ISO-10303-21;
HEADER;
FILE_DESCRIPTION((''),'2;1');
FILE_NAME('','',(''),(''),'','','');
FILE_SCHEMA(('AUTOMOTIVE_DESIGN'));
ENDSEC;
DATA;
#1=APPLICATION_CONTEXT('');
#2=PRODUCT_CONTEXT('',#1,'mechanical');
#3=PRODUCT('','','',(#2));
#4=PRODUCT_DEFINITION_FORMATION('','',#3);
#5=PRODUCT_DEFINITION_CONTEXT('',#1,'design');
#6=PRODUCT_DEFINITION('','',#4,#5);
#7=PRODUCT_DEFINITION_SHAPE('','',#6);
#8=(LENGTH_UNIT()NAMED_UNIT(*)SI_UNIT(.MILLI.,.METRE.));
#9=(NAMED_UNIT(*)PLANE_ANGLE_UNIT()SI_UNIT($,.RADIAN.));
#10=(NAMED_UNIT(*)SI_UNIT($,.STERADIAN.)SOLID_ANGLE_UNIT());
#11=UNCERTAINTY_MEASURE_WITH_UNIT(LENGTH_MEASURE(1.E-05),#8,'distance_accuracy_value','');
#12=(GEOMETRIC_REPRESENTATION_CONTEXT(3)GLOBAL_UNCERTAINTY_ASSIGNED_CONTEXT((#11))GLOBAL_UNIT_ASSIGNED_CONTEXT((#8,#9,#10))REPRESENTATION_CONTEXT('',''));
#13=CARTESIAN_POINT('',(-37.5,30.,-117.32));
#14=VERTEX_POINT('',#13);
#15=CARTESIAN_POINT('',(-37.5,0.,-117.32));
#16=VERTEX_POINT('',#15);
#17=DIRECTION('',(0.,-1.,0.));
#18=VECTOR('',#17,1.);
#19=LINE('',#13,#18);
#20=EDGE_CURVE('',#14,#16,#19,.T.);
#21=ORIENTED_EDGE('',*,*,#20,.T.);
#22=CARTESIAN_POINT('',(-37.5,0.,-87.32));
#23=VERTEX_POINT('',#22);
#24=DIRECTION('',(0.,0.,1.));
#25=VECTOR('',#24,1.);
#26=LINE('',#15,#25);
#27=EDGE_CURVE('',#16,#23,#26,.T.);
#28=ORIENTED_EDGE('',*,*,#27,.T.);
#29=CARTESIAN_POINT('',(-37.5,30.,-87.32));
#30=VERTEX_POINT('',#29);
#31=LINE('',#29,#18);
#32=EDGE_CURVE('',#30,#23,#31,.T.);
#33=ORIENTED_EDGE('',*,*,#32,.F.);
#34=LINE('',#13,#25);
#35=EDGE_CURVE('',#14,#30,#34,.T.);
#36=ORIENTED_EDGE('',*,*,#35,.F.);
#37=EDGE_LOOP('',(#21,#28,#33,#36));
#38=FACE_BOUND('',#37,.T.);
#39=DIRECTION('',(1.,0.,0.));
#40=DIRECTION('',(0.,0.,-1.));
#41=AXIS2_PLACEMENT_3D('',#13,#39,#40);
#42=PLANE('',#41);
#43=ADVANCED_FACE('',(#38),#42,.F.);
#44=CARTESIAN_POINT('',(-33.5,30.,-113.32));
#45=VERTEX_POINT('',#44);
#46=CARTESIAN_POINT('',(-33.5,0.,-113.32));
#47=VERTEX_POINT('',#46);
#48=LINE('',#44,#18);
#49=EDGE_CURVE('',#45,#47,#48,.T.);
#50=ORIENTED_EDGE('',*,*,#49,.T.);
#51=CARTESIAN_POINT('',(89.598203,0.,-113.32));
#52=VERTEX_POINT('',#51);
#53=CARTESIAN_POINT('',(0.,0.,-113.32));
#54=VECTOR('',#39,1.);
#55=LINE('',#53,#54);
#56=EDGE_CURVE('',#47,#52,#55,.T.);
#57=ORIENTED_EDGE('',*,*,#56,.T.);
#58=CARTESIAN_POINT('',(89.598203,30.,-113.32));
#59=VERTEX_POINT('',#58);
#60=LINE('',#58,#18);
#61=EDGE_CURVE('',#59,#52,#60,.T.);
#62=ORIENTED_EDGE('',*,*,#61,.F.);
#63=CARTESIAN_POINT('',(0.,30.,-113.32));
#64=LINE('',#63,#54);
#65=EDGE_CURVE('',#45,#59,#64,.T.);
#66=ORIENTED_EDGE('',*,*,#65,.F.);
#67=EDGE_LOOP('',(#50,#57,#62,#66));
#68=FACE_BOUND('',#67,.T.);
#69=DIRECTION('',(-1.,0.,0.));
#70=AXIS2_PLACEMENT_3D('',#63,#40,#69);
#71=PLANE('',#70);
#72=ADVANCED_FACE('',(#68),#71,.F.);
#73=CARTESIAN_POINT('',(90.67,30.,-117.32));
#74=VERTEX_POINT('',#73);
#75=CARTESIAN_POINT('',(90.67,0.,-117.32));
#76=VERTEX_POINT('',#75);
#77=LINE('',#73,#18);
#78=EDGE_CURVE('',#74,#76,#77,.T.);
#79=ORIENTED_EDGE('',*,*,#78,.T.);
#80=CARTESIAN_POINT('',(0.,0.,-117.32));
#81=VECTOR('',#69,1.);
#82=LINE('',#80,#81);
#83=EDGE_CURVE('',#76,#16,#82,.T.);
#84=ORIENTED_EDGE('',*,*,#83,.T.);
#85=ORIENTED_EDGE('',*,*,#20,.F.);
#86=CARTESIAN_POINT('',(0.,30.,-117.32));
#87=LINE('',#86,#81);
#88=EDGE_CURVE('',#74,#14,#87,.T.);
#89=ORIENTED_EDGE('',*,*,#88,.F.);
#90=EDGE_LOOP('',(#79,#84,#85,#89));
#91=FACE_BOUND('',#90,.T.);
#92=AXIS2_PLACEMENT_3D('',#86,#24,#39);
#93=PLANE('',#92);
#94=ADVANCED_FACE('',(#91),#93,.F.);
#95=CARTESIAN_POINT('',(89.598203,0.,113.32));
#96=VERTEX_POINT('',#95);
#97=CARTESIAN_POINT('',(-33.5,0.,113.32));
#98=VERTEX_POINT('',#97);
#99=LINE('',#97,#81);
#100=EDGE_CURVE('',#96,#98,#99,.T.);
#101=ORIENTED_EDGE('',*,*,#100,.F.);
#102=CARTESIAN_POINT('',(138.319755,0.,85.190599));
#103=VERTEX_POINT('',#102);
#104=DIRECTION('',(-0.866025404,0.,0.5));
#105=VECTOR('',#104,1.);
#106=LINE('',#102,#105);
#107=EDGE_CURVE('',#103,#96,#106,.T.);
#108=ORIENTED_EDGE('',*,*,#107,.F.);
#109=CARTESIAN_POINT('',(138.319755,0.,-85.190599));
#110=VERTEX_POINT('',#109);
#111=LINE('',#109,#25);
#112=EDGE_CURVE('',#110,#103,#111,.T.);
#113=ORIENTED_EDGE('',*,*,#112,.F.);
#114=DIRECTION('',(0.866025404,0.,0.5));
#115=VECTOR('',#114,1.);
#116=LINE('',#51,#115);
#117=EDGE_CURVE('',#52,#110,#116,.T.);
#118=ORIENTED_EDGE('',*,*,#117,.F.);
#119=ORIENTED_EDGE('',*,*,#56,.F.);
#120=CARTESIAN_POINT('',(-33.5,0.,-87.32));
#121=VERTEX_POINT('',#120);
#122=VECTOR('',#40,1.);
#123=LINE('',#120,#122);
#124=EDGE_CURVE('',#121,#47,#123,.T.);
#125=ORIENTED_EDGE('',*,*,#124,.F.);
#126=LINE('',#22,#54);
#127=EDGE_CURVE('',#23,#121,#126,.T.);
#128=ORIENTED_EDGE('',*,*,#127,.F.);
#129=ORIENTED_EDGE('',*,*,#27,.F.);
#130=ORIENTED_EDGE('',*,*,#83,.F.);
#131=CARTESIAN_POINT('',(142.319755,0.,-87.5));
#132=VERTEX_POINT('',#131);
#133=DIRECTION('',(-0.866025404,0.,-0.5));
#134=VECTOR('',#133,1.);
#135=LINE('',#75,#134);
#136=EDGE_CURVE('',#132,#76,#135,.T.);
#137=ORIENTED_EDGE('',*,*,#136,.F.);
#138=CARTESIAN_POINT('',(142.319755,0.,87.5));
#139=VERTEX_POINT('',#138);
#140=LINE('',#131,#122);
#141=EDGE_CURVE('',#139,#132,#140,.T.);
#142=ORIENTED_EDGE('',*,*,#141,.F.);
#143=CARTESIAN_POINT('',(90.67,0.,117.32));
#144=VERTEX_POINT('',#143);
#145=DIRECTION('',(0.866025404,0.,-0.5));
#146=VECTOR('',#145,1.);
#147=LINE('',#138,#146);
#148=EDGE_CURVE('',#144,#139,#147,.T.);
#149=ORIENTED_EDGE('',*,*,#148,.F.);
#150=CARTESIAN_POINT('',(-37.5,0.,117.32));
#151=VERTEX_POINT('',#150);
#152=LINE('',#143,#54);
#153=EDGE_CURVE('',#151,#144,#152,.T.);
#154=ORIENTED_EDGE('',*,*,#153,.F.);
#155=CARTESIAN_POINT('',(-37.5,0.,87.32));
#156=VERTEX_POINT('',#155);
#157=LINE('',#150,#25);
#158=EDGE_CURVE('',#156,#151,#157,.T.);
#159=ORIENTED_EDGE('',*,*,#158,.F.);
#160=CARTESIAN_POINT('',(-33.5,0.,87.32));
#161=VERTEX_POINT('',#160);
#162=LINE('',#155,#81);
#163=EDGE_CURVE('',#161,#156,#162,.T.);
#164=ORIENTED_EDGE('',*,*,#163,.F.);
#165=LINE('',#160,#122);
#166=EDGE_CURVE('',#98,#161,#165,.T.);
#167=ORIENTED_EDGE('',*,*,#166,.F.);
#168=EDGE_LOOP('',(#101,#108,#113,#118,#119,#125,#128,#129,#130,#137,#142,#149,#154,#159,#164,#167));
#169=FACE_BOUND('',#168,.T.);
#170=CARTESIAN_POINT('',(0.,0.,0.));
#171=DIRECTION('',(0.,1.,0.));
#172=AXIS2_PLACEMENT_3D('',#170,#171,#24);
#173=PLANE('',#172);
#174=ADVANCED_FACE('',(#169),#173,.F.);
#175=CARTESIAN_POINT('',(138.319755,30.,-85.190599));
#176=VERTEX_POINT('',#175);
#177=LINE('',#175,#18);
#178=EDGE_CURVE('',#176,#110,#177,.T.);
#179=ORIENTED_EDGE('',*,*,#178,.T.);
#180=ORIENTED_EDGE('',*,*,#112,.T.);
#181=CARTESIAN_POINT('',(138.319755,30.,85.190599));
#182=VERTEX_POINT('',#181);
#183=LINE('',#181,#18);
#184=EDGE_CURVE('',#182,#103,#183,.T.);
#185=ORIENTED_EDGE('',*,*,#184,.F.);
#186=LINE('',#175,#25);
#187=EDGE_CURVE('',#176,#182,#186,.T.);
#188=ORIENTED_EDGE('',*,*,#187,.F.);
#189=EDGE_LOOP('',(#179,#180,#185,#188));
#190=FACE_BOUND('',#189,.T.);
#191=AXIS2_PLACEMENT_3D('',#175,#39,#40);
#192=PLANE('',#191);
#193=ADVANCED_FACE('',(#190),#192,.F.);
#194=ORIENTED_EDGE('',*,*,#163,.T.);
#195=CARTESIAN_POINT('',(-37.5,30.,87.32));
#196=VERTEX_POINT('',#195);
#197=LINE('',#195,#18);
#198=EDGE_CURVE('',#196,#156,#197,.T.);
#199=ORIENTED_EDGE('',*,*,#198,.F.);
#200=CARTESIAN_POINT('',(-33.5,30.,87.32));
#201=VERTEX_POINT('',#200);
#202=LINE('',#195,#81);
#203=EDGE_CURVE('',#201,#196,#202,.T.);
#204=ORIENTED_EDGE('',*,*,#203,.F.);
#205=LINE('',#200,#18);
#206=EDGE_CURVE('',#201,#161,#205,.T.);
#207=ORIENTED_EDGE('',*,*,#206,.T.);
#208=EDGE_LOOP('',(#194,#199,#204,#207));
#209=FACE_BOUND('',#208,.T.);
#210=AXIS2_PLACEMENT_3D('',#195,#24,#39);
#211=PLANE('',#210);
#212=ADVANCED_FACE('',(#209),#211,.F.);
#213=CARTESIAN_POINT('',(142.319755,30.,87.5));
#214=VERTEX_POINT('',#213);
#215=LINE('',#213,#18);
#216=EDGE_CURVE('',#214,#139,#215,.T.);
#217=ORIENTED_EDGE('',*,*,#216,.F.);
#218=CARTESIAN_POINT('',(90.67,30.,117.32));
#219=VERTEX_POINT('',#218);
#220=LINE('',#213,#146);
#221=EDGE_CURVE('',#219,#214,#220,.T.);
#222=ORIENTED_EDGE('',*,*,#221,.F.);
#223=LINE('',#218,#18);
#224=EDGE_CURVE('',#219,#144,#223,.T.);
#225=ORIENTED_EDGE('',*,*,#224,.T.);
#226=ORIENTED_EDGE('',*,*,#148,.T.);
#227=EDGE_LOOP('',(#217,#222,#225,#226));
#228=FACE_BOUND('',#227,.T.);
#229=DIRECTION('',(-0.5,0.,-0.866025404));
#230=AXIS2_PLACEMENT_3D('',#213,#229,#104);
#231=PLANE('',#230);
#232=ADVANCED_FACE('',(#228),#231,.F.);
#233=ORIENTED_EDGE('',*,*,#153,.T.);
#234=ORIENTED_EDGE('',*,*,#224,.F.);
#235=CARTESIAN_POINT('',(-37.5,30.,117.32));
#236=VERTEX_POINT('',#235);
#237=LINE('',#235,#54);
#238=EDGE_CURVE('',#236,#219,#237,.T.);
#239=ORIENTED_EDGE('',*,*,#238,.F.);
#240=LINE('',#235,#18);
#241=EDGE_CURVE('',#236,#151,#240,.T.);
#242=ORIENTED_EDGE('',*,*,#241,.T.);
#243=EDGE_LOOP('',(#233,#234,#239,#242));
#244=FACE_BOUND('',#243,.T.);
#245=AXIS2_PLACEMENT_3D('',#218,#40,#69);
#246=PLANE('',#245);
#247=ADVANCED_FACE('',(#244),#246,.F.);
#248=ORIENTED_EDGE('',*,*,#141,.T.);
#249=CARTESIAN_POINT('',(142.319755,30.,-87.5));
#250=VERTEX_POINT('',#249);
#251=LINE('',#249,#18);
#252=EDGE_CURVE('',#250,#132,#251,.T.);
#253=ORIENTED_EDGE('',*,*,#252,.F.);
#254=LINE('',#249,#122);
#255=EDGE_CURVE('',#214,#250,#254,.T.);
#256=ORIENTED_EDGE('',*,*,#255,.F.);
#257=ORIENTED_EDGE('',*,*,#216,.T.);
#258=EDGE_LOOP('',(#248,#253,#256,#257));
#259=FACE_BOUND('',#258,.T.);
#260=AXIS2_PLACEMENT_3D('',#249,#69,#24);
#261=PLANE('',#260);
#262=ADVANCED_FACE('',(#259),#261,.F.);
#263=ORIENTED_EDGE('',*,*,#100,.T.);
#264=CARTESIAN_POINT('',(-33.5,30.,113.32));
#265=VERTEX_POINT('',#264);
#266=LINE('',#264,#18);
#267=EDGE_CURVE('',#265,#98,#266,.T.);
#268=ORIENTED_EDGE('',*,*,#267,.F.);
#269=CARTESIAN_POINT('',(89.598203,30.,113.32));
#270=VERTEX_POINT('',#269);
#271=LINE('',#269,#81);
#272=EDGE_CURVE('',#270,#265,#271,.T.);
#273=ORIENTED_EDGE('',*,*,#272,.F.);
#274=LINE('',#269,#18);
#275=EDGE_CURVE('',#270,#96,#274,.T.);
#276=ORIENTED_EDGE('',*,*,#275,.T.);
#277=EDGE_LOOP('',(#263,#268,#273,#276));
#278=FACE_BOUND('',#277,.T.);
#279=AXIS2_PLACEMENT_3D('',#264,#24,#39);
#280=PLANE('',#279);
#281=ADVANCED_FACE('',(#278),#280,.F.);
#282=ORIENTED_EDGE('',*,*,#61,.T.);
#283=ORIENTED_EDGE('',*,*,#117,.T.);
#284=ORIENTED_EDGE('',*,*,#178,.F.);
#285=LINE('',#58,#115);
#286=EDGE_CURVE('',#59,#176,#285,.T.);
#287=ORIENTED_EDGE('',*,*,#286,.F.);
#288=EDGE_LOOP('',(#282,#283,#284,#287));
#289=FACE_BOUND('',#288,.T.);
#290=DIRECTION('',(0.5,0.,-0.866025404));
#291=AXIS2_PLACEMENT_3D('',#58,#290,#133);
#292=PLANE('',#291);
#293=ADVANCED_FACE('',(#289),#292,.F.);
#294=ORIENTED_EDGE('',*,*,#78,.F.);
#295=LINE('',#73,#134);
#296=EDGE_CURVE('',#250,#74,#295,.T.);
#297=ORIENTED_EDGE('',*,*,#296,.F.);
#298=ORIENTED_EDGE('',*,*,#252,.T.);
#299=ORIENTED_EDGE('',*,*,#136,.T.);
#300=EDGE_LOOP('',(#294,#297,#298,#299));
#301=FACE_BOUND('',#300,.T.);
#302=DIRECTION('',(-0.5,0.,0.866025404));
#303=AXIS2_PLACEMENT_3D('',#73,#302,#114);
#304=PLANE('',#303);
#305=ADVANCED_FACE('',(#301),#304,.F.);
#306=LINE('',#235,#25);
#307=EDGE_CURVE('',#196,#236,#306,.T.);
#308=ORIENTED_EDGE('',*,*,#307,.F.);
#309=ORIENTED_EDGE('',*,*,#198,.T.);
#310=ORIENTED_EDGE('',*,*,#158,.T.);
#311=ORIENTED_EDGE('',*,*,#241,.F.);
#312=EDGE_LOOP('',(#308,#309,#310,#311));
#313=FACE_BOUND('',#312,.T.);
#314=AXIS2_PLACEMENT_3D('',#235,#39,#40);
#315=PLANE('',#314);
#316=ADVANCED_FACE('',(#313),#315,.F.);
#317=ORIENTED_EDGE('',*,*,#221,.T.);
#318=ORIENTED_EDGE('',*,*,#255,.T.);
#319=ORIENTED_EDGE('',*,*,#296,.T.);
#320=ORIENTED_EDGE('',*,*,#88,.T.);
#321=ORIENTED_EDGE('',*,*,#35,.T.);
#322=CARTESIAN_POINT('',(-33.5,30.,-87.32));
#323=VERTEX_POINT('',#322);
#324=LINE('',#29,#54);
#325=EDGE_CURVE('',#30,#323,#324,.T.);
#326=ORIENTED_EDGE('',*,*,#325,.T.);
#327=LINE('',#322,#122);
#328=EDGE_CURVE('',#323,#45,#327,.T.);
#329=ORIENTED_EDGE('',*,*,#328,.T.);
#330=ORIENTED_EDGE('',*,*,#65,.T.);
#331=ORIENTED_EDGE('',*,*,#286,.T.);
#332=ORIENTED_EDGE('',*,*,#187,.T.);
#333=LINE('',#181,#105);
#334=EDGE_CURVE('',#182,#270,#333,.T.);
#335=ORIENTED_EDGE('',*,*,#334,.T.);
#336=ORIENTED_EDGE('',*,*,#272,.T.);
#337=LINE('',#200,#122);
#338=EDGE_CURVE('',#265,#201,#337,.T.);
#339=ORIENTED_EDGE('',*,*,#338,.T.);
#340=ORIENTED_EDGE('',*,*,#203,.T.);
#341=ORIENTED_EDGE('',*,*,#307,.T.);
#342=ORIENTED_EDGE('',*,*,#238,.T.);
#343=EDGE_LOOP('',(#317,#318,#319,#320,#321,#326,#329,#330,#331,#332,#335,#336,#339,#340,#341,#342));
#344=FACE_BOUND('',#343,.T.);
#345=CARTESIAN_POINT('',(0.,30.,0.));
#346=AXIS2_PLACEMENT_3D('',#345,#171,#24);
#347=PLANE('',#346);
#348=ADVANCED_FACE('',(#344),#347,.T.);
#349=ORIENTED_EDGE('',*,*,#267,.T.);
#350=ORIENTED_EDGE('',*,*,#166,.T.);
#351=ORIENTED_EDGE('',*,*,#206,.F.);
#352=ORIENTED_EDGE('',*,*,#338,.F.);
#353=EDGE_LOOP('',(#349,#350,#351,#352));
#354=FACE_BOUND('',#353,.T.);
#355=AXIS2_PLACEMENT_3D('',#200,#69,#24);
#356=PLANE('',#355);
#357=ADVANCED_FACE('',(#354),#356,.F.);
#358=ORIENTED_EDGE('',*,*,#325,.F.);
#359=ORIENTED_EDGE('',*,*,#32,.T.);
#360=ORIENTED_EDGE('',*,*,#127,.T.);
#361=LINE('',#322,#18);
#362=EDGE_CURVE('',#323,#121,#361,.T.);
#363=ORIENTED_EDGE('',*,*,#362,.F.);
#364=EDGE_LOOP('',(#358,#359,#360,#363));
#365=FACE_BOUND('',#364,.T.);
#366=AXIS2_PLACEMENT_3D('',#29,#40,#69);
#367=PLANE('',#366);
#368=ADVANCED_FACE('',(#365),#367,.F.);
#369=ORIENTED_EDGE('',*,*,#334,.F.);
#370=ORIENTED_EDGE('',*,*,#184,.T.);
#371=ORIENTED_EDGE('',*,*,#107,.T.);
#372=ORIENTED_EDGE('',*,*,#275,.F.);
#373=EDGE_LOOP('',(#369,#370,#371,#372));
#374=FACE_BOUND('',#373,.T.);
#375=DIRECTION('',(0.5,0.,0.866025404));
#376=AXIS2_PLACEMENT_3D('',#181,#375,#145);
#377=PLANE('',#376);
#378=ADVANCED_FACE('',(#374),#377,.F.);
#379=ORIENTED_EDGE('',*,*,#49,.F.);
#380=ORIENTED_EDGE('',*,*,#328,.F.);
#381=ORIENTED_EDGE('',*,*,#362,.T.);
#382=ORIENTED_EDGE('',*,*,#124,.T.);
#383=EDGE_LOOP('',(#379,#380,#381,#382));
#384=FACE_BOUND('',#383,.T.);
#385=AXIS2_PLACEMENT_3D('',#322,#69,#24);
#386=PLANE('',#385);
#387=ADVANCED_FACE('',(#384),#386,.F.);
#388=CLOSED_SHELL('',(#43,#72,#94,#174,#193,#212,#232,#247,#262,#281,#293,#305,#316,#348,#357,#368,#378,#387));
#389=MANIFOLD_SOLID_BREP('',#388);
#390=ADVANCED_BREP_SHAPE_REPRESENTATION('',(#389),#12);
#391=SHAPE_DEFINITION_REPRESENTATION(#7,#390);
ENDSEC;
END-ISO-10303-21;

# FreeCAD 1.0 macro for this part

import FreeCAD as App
import Part
import Sketcher

V = App.Vector
Q = App.Units.Quantity

doc = App.newDocument("Part")
body = doc.addObject("PartDesign::Body", "Body")

# Sketch on XZ plane
sketch1 = doc.addObject("Sketcher::SketchObject", "Sketch")
body.addObject(sketch1)
sketch1.AttachmentSupport = (doc.XZ_Plane, [""])
sketch1.MapMode = "FlatFace"
sketch1.addGeometry(Part.LineSegment(V(90.7, -117.3, 0), V(-37.5, -117.3, 0)), False)
sketch1.addGeometry(Part.LineSegment(V(-37.5, -117.3, 0), V(-37.5, -87.3, 0)), False)
sketch1.addGeometry(Part.LineSegment(V(-37.5, -87.3, 0), V(-33.5, -87.3, 0)), False)
sketch1.addGeometry(Part.LineSegment(V(-33.5, -87.3, 0), V(-33.5, -113.3, 0)), False)
sketch1.addGeometry(Part.LineSegment(V(-33.5, -113.3, 0), V(89.6, -113.3, 0)), False)
sketch1.addGeometry(Part.LineSegment(V(89.6, -113.3, 0), V(138.3, -85.2, 0)), False)
sketch1.addGeometry(Part.LineSegment(V(138.3, -85.2, 0), V(138.3, 85.2, 0)), False)
sketch1.addGeometry(Part.LineSegment(V(138.3, 85.2, 0), V(89.6, 113.3, 0)), False)
sketch1.addGeometry(Part.LineSegment(V(89.6, 113.3, 0), V(-33.5, 113.3, 0)), False)
sketch1.addGeometry(Part.LineSegment(V(-33.5, 113.3, 0), V(-33.5, 87.3, 0)), False)
sketch1.addGeometry(Part.LineSegment(V(-33.5, 87.3, 0), V(-37.5, 87.3, 0)), False)
sketch1.addGeometry(Part.LineSegment(V(-37.5, 87.3, 0), V(-37.5, 117.3, 0)), False)
sketch1.addGeometry(Part.LineSegment(V(-37.5, 117.3, 0), V(90.7, 117.3, 0)), False)
sketch1.addGeometry(Part.LineSegment(V(90.7, 117.3, 0), V(142.3, 87.5, 0)), False)
sketch1.addGeometry(Part.LineSegment(V(142.3, 87.5, 0), V(142.3, -87.5, 0)), False)
sketch1.addGeometry(Part.LineSegment(V(142.3, -87.5, 0), V(90.7, -117.3, 0)), False)
sketch1.addConstraint(Sketcher.Constraint("Coincident", 0, 2, 1, 1))
sketch1.addConstraint(Sketcher.Constraint("Coincident", 1, 2, 2, 1))
sketch1.addConstraint(Sketcher.Constraint("Coincident", 2, 2, 3, 1))
sketch1.addConstraint(Sketcher.Constraint("Coincident", 3, 2, 4, 1))
sketch1.addConstraint(Sketcher.Constraint("Coincident", 4, 2, 5, 1))
sketch1.addConstraint(Sketcher.Constraint("Coincident", 5, 2, 6, 1))
sketch1.addConstraint(Sketcher.Constraint("Coincident", 6, 2, 7, 1))
sketch1.addConstraint(Sketcher.Constraint("Coincident", 7, 2, 8, 1))
sketch1.addConstraint(Sketcher.Constraint("Coincident", 8, 2, 9, 1))
sketch1.addConstraint(Sketcher.Constraint("Coincident", 9, 2, 10, 1))
sketch1.addConstraint(Sketcher.Constraint("Coincident", 10, 2, 11, 1))
sketch1.addConstraint(Sketcher.Constraint("Coincident", 11, 2, 12, 1))
sketch1.addConstraint(Sketcher.Constraint("Coincident", 12, 2, 13, 1))
sketch1.addConstraint(Sketcher.Constraint("Coincident", 13, 2, 14, 1))
sketch1.addConstraint(Sketcher.Constraint("Coincident", 14, 2, 15, 1))
sketch1.addConstraint(Sketcher.Constraint("Coincident", 15, 2, 0, 1))
sketch1.addConstraint(Sketcher.Constraint("Horizontal", 0))
sketch1.addConstraint(Sketcher.Constraint("Vertical", 1))
sketch1.addConstraint(Sketcher.Constraint("Horizontal", 2))
sketch1.addConstraint(Sketcher.Constraint("Vertical", 3))
sketch1.addConstraint(Sketcher.Constraint("Horizontal", 4))
sketch1.addConstraint(Sketcher.Constraint("Vertical", 6))
sketch1.addConstraint(Sketcher.Constraint("Horizontal", 8))
sketch1.addConstraint(Sketcher.Constraint("Vertical", 9))
sketch1.addConstraint(Sketcher.Constraint("Horizontal", 10))
sketch1.addConstraint(Sketcher.Constraint("Vertical", 11))
sketch1.addConstraint(Sketcher.Constraint("Horizontal", 12))
sketch1.addConstraint(Sketcher.Constraint("Vertical", 14))
sketch1.addConstraint(Sketcher.Constraint("Symmetric", 4, 2, 7, 2, -1))
sketch1.addConstraint(Sketcher.Constraint("Symmetric", 2, 2, 9, 2, -1))
sketch1.addConstraint(Sketcher.Constraint("Symmetric", 0, 2, 11, 2, -1))
sketch1.addConstraint(Sketcher.Constraint("Parallel", 7, 13))
sketch1.addConstraint(Sketcher.Constraint("Parallel", 5, 15))
sketch1.addConstraint(Sketcher.Constraint("Vertical", 12, 2, 15, 2))
sketch1.addConstraint(Sketcher.Constraint("Equal", 5, 7))
sketch1.addConstraint(Sketcher.Constraint("DistanceX", 2, 1, 2, 2, 4.0))
sketch1.addConstraint(Sketcher.Constraint("DistanceY", 1, 1, 1, 2, 30.0))
sketch1.addConstraint(Sketcher.Constraint("DistanceY", 3, 2, 3, 1, 26.0))
sketch1.addConstraint(Sketcher.Constraint("DistanceY", 14, 2, 14, 1, 175.0))
sketch1.addConstraint(Sketcher.Constraint("Angle", 5, Q("30 deg")))
sketch1.addConstraint(Sketcher.Constraint("DistanceX", 6, 2, 13, 2, 4.0))
sketch1.addConstraint(Sketcher.Constraint("DistanceX", 0, 2, 0, 1, 128.17))
sketch1.addConstraint(Sketcher.Constraint("DistanceX", 0, 2, -1, 1, 37.5))
sketch1.addConstraint(Sketcher.Constraint("Distance", 13, 59.64))
sketch1.addConstraint(Sketcher.Constraint("DistanceY", 5, 2, -1, 1, 85.190599))
pad1 = doc.addObject("PartDesign::Pad", "Pad")
body.addObject(pad1)
pad1.Profile = sketch1
pad1.Length = 30
pad1.Reversed = True

doc.recompute()
